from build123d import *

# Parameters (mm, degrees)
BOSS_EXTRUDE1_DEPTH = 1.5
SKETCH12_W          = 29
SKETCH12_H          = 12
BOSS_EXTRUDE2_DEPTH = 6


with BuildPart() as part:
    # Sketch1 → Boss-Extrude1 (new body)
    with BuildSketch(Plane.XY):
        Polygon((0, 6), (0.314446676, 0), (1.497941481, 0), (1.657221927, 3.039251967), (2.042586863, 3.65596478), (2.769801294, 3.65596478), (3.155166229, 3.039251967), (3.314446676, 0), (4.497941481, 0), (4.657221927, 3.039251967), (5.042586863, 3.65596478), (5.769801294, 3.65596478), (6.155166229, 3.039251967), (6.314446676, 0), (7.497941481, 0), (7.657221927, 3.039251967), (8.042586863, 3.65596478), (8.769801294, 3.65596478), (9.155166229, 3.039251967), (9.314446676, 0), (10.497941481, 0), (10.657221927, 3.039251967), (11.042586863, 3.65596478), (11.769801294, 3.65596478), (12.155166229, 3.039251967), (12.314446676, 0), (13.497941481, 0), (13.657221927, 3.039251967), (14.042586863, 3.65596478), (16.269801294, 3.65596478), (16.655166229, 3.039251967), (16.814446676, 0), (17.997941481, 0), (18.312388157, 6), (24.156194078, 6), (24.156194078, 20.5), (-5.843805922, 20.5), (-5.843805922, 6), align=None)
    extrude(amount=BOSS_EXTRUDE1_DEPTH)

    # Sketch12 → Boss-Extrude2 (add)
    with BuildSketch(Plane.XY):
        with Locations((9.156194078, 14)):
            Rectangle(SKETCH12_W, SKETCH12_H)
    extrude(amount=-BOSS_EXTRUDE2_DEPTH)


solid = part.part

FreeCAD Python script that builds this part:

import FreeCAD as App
import Part
import Sketcher
Q = App.Units.Quantity

doc = App.newDocument("Part")
params = doc.addObject("Spreadsheet::Sheet", "Params")
for row, (alias, value) in enumerate([
    ("sketch1_width", "30 mm"),
    ("sketch1_height", "14.5 mm"),
    ("pad1_length", "1.5 mm"),
    ("sketch2_width", "29 mm"),
    ("sketch2_height", "12 mm"),
    ("pad2_length", "6 mm"),
], start=1):
    params.set(f"A{row}", alias)
    params.set(f"B{row}", "=" + value)
    params.setAlias(f"B{row}", alias)

body = doc.addObject("PartDesign::Body", "Body")

# Sketch on XY plane
sketch1 = body.newObject("Sketcher::SketchObject", "Sketch")
sketch1.AttachmentSupport = (doc.getObject("XY_Plane"), [""])
sketch1.MapMode = "FlatFace"
sketch1.addGeometry([
    Part.LineSegment(App.Vector(0, 6, 0), App.Vector(0.3, 0, 0)),  # 0
    Part.LineSegment(App.Vector(0.3, 0, 0), App.Vector(1.5, 0, 0)),  # 1
    Part.LineSegment(App.Vector(1.5, 0, 0), App.Vector(1.7, 3, 0)),  # 2
    Part.LineSegment(App.Vector(1.7, 3, 0), App.Vector(2, 3.7, 0)),  # 3
    Part.LineSegment(App.Vector(2, 3.7, 0), App.Vector(2.8, 3.7, 0)),  # 4
    Part.LineSegment(App.Vector(2.8, 3.7, 0), App.Vector(3.2, 3, 0)),  # 5
    Part.LineSegment(App.Vector(3.2, 3, 0), App.Vector(3.3, 0, 0)),  # 6
    Part.LineSegment(App.Vector(3.3, 0, 0), App.Vector(4.5, 0, 0)),  # 7
    Part.LineSegment(App.Vector(4.5, 0, 0), App.Vector(4.7, 3, 0)),  # 8
    Part.LineSegment(App.Vector(4.7, 3, 0), App.Vector(5, 3.7, 0)),  # 9
    Part.LineSegment(App.Vector(5, 3.7, 0), App.Vector(5.8, 3.7, 0)),  # 10
    Part.LineSegment(App.Vector(5.8, 3.7, 0), App.Vector(6.2, 3, 0)),  # 11
    Part.LineSegment(App.Vector(6.2, 3, 0), App.Vector(6.3, 0, 0)),  # 12
    Part.LineSegment(App.Vector(6.3, 0, 0), App.Vector(7.5, 0, 0)),  # 13
    Part.LineSegment(App.Vector(7.5, 0, 0), App.Vector(7.7, 3, 0)),  # 14
    Part.LineSegment(App.Vector(7.7, 3, 0), App.Vector(8, 3.7, 0)),  # 15
    Part.LineSegment(App.Vector(8, 3.7, 0), App.Vector(8.8, 3.7, 0)),  # 16
    Part.LineSegment(App.Vector(8.8, 3.7, 0), App.Vector(9.2, 3, 0)),  # 17
    Part.LineSegment(App.Vector(9.2, 3, 0), App.Vector(9.3, 0, 0)),  # 18
    Part.LineSegment(App.Vector(9.3, 0, 0), App.Vector(10.5, 0, 0)),  # 19
    Part.LineSegment(App.Vector(10.5, 0, 0), App.Vector(10.7, 3, 0)),  # 20
    Part.LineSegment(App.Vector(10.7, 3, 0), App.Vector(11, 3.7, 0)),  # 21
    Part.LineSegment(App.Vector(11, 3.7, 0), App.Vector(11.8, 3.7, 0)),  # 22
    Part.LineSegment(App.Vector(11.8, 3.7, 0), App.Vector(12.2, 3, 0)),  # 23
    Part.LineSegment(App.Vector(12.2, 3, 0), App.Vector(12.3, 0, 0)),  # 24
    Part.LineSegment(App.Vector(12.3, 0, 0), App.Vector(13.5, 0, 0)),  # 25
    Part.LineSegment(App.Vector(13.5, 0, 0), App.Vector(13.7, 3, 0)),  # 26
    Part.LineSegment(App.Vector(13.7, 3, 0), App.Vector(14, 3.7, 0)),  # 27
    Part.LineSegment(App.Vector(14, 3.7, 0), App.Vector(16.3, 3.7, 0)),  # 28
    Part.LineSegment(App.Vector(16.3, 3.7, 0), App.Vector(16.7, 3, 0)),  # 29
    Part.LineSegment(App.Vector(16.7, 3, 0), App.Vector(16.8, 0, 0)),  # 30
    Part.LineSegment(App.Vector(16.8, 0, 0), App.Vector(18, 0, 0)),  # 31
    Part.LineSegment(App.Vector(18, 0, 0), App.Vector(18.3, 6, 0)),  # 32
    Part.LineSegment(App.Vector(18.3, 6, 0), App.Vector(24.2, 6, 0)),  # 33
    Part.LineSegment(App.Vector(24.2, 6, 0), App.Vector(24.2, 20.5, 0)),  # 34
    Part.LineSegment(App.Vector(24.2, 20.5, 0), App.Vector(-5.8, 20.5, 0)),  # 35
    Part.LineSegment(App.Vector(-5.8, 20.5, 0), App.Vector(-5.8, 6, 0)),  # 36
    Part.LineSegment(App.Vector(-5.8, 6, 0), App.Vector(0, 6, 0)),  # 37
], False)
sketch1.addConstraint([
    Sketcher.Constraint("Coincident", 0, 2, 1, 1),
    Sketcher.Constraint("Coincident", 1, 2, 2, 1),
    Sketcher.Constraint("Coincident", 2, 2, 3, 1),
    Sketcher.Constraint("Coincident", 3, 2, 4, 1),
    Sketcher.Constraint("Coincident", 4, 2, 5, 1),
    Sketcher.Constraint("Coincident", 5, 2, 6, 1),
    Sketcher.Constraint("Coincident", 6, 2, 7, 1),
    Sketcher.Constraint("Coincident", 7, 2, 8, 1),
    Sketcher.Constraint("Coincident", 8, 2, 9, 1),
    Sketcher.Constraint("Coincident", 9, 2, 10, 1),
    Sketcher.Constraint("Coincident", 10, 2, 11, 1),
    Sketcher.Constraint("Coincident", 11, 2, 12, 1),
    Sketcher.Constraint("Coincident", 12, 2, 13, 1),
    Sketcher.Constraint("Coincident", 13, 2, 14, 1),
    Sketcher.Constraint("Coincident", 14, 2, 15, 1),
    Sketcher.Constraint("Coincident", 15, 2, 16, 1),
    Sketcher.Constraint("Coincident", 16, 2, 17, 1),
    Sketcher.Constraint("Coincident", 17, 2, 18, 1),
    Sketcher.Constraint("Coincident", 18, 2, 19, 1),
    Sketcher.Constraint("Coincident", 19, 2, 20, 1),
    Sketcher.Constraint("Coincident", 20, 2, 21, 1),
    Sketcher.Constraint("Coincident", 21, 2, 22, 1),
    Sketcher.Constraint("Coincident", 22, 2, 23, 1),
    Sketcher.Constraint("Coincident", 23, 2, 24, 1),
    Sketcher.Constraint("Coincident", 24, 2, 25, 1),
    Sketcher.Constraint("Coincident", 25, 2, 26, 1),
    Sketcher.Constraint("Coincident", 26, 2, 27, 1),
    Sketcher.Constraint("Coincident", 27, 2, 28, 1),
    Sketcher.Constraint("Coincident", 28, 2, 29, 1),
    Sketcher.Constraint("Coincident", 29, 2, 30, 1),
    Sketcher.Constraint("Coincident", 30, 2, 31, 1),
    Sketcher.Constraint("Coincident", 31, 2, 32, 1),
    Sketcher.Constraint("Coincident", 32, 2, 33, 1),
    Sketcher.Constraint("Coincident", 33, 2, 34, 1),
    Sketcher.Constraint("Coincident", 34, 2, 35, 1),
    Sketcher.Constraint("Coincident", 35, 2, 36, 1),
    Sketcher.Constraint("Coincident", 36, 2, 37, 1),
    Sketcher.Constraint("Coincident", 37, 2, 0, 1),
    Sketcher.Constraint("Horizontal", 1),
    Sketcher.Constraint("Horizontal", 4),
    Sketcher.Constraint("Horizontal", 7),
    Sketcher.Constraint("Horizontal", 10),
    Sketcher.Constraint("Horizontal", 13),
    Sketcher.Constraint("Horizontal", 16),
    Sketcher.Constraint("Horizontal", 19),
    Sketcher.Constraint("Horizontal", 22),
    Sketcher.Constraint("Horizontal", 25),
    Sketcher.Constraint("Horizontal", 28),
    Sketcher.Constraint("Horizontal", 31),
    Sketcher.Constraint("Horizontal", 33),
    Sketcher.Constraint("Vertical", 34),
    Sketcher.Constraint("Horizontal", 35),
    Sketcher.Constraint("Vertical", 36),
    Sketcher.Constraint("Horizontal", 37),
    Sketcher.Constraint("PointOnObject", 0, 2, -1),
    Sketcher.Constraint("PointOnObject", 6, 2, -1),
    Sketcher.Constraint("PointOnObject", 12, 2, -1),
    Sketcher.Constraint("PointOnObject", 18, 2, -1),
    Sketcher.Constraint("PointOnObject", 24, 2, -1),
    Sketcher.Constraint("PointOnObject", 30, 2, -1),
    Sketcher.Constraint("PointOnObject", 37, 2, -2),
    Sketcher.Constraint("Parallel", 0, 6),
    Sketcher.Constraint("Parallel", 2, 8),
    Sketcher.Constraint("Parallel", 3, 9),
    Sketcher.Constraint("Parallel", 5, 11),
    Sketcher.Constraint("Parallel", 6, 12),
    Sketcher.Constraint("Parallel", 8, 14),
    Sketcher.Constraint("Parallel", 9, 15),
    Sketcher.Constraint("Parallel", 11, 17),
    Sketcher.Constraint("Parallel", 12, 18),
    Sketcher.Constraint("Parallel", 14, 20),
    Sketcher.Constraint("Parallel", 15, 21),
    Sketcher.Constraint("Parallel", 17, 23),
    Sketcher.Constraint("Parallel", 18, 24),
    Sketcher.Constraint("Parallel", 20, 26),
    Sketcher.Constraint("Parallel", 21, 27),
    Sketcher.Constraint("Parallel", 23, 29),
    Sketcher.Constraint("Parallel", 24, 30),
    Sketcher.Constraint("Parallel", 26, 32),
    Sketcher.Constraint("Horizontal", 2, 2, 5, 2),
    Sketcher.Constraint("Horizontal", 5, 2, 8, 2),
    Sketcher.Constraint("Horizontal", 4, 2, 9, 2),
    Sketcher.Constraint("Horizontal", 8, 2, 11, 2),
    Sketcher.Constraint("Horizontal", 11, 2, 14, 2),
    Sketcher.Constraint("Horizontal", 10, 2, 15, 2),
    Sketcher.Constraint("Horizontal", 14, 2, 17, 2),
    Sketcher.Constraint("Horizontal", 17, 2, 20, 2),
    Sketcher.Constraint("Horizontal", 16, 2, 21, 2),
    Sketcher.Constraint("Horizontal", 20, 2, 23, 2),
    Sketcher.Constraint("Horizontal", 23, 2, 26, 2),
    Sketcher.Constraint("Horizontal", 22, 2, 27, 2),
    Sketcher.Constraint("Horizontal", 26, 2, 29, 2),
    Sketcher.Constraint("Horizontal", 33, 2, 36, 2),
    Sketcher.Constraint("Equal", 1, 7),
    Sketcher.Constraint("Equal", 4, 10),
    Sketcher.Constraint("Equal", 7, 13),
    Sketcher.Constraint("Equal", 10, 16),
    Sketcher.Constraint("Equal", 13, 19),
    Sketcher.Constraint("Equal", 16, 22),
    Sketcher.Constraint("Equal", 19, 25),
    Sketcher.Constraint("Equal", 25, 31),
    Sketcher.Constraint("Equal", 33, 37),
    Sketcher.Constraint("Equal", 3, 5),
    Sketcher.Constraint("Equal", 2, 6),
    Sketcher.Constraint("DistanceX", 35, 2, 35, 1, 30.0),
    Sketcher.Constraint("Angle", 0, Q("-87 deg")),
    Sketcher.Constraint("Angle", 3, Q("58 deg")),
    Sketcher.Constraint("DistanceY", 34, 1, 34, 2, 14.5),
    Sketcher.Constraint("DistanceY", -1, 1, 32, 2, 6.0),
    Sketcher.Constraint("DistanceX", 0, 2, 6, 2, 3.0),
    Sketcher.Constraint("DistanceX", 22, 2, 28, 2, 4.5),
    Sketcher.Constraint("DistanceX", -1, 1, 4, 2, 2.769801),
    Sketcher.Constraint("DistanceX", 1, 1, 1, 2, 1.183495),
    Sketcher.Constraint("DistanceX", -1, 1, 2, 2, 1.657222),
])
sketch1.setExpression("Constraints[104]", "Params.sketch1_width")
sketch1.setExpression("Constraints[107]", "Params.sketch1_height")
pad1 = body.newObject("PartDesign::Pad", "Pad")
pad1.Profile = sketch1
pad1.setExpression("Length", "Params.pad1_length")

# Sketch on XY plane
sketch2 = body.newObject("Sketcher::SketchObject", "Sketch001")
sketch2.AttachmentSupport = (doc.getObject("XY_Plane"), [""])
sketch2.MapMode = "FlatFace"
sketch2.addGeometry([
    Part.LineSegment(App.Vector(-5, 20, 0), App.Vector(-5, 8, 0)),
    Part.LineSegment(App.Vector(-5, 8, 0), App.Vector(24, 8, 0)),
    Part.LineSegment(App.Vector(24, 8, 0), App.Vector(24, 20, 0)),
    Part.LineSegment(App.Vector(24, 20, 0), App.Vector(-5, 20, 0)),
], False)
sketch2.addConstraint([
    Sketcher.Constraint("Coincident", 0, 2, 1, 1),
    Sketcher.Constraint("Coincident", 1, 2, 2, 1),
    Sketcher.Constraint("Coincident", 2, 2, 3, 1),
    Sketcher.Constraint("Coincident", 3, 2, 0, 1),
    Sketcher.Constraint("Vertical", 0),
    Sketcher.Constraint("Horizontal", 1),
    Sketcher.Constraint("Vertical", 2),
    Sketcher.Constraint("Horizontal", 3),
    Sketcher.Constraint("DistanceX", 1, 1, 1, 2, 29.0),
    Sketcher.Constraint("DistanceY", 0, 2, 0, 1, 12.0),
    Sketcher.Constraint("DistanceY", -1, 1, 0, 2, 8.0),
    Sketcher.Constraint("DistanceX", 0, 2, -1, 1, 5.343806),
])
sketch2.setExpression("Constraints[8]", "Params.sketch2_width")
sketch2.setExpression("Constraints[9]", "Params.sketch2_height")
pad2 = body.newObject("PartDesign::Pad", "Pad001")
pad2.Profile = sketch2
pad2.setExpression("Length", "Params.pad2_length")
pad2.Reversed = True

doc.recompute()
